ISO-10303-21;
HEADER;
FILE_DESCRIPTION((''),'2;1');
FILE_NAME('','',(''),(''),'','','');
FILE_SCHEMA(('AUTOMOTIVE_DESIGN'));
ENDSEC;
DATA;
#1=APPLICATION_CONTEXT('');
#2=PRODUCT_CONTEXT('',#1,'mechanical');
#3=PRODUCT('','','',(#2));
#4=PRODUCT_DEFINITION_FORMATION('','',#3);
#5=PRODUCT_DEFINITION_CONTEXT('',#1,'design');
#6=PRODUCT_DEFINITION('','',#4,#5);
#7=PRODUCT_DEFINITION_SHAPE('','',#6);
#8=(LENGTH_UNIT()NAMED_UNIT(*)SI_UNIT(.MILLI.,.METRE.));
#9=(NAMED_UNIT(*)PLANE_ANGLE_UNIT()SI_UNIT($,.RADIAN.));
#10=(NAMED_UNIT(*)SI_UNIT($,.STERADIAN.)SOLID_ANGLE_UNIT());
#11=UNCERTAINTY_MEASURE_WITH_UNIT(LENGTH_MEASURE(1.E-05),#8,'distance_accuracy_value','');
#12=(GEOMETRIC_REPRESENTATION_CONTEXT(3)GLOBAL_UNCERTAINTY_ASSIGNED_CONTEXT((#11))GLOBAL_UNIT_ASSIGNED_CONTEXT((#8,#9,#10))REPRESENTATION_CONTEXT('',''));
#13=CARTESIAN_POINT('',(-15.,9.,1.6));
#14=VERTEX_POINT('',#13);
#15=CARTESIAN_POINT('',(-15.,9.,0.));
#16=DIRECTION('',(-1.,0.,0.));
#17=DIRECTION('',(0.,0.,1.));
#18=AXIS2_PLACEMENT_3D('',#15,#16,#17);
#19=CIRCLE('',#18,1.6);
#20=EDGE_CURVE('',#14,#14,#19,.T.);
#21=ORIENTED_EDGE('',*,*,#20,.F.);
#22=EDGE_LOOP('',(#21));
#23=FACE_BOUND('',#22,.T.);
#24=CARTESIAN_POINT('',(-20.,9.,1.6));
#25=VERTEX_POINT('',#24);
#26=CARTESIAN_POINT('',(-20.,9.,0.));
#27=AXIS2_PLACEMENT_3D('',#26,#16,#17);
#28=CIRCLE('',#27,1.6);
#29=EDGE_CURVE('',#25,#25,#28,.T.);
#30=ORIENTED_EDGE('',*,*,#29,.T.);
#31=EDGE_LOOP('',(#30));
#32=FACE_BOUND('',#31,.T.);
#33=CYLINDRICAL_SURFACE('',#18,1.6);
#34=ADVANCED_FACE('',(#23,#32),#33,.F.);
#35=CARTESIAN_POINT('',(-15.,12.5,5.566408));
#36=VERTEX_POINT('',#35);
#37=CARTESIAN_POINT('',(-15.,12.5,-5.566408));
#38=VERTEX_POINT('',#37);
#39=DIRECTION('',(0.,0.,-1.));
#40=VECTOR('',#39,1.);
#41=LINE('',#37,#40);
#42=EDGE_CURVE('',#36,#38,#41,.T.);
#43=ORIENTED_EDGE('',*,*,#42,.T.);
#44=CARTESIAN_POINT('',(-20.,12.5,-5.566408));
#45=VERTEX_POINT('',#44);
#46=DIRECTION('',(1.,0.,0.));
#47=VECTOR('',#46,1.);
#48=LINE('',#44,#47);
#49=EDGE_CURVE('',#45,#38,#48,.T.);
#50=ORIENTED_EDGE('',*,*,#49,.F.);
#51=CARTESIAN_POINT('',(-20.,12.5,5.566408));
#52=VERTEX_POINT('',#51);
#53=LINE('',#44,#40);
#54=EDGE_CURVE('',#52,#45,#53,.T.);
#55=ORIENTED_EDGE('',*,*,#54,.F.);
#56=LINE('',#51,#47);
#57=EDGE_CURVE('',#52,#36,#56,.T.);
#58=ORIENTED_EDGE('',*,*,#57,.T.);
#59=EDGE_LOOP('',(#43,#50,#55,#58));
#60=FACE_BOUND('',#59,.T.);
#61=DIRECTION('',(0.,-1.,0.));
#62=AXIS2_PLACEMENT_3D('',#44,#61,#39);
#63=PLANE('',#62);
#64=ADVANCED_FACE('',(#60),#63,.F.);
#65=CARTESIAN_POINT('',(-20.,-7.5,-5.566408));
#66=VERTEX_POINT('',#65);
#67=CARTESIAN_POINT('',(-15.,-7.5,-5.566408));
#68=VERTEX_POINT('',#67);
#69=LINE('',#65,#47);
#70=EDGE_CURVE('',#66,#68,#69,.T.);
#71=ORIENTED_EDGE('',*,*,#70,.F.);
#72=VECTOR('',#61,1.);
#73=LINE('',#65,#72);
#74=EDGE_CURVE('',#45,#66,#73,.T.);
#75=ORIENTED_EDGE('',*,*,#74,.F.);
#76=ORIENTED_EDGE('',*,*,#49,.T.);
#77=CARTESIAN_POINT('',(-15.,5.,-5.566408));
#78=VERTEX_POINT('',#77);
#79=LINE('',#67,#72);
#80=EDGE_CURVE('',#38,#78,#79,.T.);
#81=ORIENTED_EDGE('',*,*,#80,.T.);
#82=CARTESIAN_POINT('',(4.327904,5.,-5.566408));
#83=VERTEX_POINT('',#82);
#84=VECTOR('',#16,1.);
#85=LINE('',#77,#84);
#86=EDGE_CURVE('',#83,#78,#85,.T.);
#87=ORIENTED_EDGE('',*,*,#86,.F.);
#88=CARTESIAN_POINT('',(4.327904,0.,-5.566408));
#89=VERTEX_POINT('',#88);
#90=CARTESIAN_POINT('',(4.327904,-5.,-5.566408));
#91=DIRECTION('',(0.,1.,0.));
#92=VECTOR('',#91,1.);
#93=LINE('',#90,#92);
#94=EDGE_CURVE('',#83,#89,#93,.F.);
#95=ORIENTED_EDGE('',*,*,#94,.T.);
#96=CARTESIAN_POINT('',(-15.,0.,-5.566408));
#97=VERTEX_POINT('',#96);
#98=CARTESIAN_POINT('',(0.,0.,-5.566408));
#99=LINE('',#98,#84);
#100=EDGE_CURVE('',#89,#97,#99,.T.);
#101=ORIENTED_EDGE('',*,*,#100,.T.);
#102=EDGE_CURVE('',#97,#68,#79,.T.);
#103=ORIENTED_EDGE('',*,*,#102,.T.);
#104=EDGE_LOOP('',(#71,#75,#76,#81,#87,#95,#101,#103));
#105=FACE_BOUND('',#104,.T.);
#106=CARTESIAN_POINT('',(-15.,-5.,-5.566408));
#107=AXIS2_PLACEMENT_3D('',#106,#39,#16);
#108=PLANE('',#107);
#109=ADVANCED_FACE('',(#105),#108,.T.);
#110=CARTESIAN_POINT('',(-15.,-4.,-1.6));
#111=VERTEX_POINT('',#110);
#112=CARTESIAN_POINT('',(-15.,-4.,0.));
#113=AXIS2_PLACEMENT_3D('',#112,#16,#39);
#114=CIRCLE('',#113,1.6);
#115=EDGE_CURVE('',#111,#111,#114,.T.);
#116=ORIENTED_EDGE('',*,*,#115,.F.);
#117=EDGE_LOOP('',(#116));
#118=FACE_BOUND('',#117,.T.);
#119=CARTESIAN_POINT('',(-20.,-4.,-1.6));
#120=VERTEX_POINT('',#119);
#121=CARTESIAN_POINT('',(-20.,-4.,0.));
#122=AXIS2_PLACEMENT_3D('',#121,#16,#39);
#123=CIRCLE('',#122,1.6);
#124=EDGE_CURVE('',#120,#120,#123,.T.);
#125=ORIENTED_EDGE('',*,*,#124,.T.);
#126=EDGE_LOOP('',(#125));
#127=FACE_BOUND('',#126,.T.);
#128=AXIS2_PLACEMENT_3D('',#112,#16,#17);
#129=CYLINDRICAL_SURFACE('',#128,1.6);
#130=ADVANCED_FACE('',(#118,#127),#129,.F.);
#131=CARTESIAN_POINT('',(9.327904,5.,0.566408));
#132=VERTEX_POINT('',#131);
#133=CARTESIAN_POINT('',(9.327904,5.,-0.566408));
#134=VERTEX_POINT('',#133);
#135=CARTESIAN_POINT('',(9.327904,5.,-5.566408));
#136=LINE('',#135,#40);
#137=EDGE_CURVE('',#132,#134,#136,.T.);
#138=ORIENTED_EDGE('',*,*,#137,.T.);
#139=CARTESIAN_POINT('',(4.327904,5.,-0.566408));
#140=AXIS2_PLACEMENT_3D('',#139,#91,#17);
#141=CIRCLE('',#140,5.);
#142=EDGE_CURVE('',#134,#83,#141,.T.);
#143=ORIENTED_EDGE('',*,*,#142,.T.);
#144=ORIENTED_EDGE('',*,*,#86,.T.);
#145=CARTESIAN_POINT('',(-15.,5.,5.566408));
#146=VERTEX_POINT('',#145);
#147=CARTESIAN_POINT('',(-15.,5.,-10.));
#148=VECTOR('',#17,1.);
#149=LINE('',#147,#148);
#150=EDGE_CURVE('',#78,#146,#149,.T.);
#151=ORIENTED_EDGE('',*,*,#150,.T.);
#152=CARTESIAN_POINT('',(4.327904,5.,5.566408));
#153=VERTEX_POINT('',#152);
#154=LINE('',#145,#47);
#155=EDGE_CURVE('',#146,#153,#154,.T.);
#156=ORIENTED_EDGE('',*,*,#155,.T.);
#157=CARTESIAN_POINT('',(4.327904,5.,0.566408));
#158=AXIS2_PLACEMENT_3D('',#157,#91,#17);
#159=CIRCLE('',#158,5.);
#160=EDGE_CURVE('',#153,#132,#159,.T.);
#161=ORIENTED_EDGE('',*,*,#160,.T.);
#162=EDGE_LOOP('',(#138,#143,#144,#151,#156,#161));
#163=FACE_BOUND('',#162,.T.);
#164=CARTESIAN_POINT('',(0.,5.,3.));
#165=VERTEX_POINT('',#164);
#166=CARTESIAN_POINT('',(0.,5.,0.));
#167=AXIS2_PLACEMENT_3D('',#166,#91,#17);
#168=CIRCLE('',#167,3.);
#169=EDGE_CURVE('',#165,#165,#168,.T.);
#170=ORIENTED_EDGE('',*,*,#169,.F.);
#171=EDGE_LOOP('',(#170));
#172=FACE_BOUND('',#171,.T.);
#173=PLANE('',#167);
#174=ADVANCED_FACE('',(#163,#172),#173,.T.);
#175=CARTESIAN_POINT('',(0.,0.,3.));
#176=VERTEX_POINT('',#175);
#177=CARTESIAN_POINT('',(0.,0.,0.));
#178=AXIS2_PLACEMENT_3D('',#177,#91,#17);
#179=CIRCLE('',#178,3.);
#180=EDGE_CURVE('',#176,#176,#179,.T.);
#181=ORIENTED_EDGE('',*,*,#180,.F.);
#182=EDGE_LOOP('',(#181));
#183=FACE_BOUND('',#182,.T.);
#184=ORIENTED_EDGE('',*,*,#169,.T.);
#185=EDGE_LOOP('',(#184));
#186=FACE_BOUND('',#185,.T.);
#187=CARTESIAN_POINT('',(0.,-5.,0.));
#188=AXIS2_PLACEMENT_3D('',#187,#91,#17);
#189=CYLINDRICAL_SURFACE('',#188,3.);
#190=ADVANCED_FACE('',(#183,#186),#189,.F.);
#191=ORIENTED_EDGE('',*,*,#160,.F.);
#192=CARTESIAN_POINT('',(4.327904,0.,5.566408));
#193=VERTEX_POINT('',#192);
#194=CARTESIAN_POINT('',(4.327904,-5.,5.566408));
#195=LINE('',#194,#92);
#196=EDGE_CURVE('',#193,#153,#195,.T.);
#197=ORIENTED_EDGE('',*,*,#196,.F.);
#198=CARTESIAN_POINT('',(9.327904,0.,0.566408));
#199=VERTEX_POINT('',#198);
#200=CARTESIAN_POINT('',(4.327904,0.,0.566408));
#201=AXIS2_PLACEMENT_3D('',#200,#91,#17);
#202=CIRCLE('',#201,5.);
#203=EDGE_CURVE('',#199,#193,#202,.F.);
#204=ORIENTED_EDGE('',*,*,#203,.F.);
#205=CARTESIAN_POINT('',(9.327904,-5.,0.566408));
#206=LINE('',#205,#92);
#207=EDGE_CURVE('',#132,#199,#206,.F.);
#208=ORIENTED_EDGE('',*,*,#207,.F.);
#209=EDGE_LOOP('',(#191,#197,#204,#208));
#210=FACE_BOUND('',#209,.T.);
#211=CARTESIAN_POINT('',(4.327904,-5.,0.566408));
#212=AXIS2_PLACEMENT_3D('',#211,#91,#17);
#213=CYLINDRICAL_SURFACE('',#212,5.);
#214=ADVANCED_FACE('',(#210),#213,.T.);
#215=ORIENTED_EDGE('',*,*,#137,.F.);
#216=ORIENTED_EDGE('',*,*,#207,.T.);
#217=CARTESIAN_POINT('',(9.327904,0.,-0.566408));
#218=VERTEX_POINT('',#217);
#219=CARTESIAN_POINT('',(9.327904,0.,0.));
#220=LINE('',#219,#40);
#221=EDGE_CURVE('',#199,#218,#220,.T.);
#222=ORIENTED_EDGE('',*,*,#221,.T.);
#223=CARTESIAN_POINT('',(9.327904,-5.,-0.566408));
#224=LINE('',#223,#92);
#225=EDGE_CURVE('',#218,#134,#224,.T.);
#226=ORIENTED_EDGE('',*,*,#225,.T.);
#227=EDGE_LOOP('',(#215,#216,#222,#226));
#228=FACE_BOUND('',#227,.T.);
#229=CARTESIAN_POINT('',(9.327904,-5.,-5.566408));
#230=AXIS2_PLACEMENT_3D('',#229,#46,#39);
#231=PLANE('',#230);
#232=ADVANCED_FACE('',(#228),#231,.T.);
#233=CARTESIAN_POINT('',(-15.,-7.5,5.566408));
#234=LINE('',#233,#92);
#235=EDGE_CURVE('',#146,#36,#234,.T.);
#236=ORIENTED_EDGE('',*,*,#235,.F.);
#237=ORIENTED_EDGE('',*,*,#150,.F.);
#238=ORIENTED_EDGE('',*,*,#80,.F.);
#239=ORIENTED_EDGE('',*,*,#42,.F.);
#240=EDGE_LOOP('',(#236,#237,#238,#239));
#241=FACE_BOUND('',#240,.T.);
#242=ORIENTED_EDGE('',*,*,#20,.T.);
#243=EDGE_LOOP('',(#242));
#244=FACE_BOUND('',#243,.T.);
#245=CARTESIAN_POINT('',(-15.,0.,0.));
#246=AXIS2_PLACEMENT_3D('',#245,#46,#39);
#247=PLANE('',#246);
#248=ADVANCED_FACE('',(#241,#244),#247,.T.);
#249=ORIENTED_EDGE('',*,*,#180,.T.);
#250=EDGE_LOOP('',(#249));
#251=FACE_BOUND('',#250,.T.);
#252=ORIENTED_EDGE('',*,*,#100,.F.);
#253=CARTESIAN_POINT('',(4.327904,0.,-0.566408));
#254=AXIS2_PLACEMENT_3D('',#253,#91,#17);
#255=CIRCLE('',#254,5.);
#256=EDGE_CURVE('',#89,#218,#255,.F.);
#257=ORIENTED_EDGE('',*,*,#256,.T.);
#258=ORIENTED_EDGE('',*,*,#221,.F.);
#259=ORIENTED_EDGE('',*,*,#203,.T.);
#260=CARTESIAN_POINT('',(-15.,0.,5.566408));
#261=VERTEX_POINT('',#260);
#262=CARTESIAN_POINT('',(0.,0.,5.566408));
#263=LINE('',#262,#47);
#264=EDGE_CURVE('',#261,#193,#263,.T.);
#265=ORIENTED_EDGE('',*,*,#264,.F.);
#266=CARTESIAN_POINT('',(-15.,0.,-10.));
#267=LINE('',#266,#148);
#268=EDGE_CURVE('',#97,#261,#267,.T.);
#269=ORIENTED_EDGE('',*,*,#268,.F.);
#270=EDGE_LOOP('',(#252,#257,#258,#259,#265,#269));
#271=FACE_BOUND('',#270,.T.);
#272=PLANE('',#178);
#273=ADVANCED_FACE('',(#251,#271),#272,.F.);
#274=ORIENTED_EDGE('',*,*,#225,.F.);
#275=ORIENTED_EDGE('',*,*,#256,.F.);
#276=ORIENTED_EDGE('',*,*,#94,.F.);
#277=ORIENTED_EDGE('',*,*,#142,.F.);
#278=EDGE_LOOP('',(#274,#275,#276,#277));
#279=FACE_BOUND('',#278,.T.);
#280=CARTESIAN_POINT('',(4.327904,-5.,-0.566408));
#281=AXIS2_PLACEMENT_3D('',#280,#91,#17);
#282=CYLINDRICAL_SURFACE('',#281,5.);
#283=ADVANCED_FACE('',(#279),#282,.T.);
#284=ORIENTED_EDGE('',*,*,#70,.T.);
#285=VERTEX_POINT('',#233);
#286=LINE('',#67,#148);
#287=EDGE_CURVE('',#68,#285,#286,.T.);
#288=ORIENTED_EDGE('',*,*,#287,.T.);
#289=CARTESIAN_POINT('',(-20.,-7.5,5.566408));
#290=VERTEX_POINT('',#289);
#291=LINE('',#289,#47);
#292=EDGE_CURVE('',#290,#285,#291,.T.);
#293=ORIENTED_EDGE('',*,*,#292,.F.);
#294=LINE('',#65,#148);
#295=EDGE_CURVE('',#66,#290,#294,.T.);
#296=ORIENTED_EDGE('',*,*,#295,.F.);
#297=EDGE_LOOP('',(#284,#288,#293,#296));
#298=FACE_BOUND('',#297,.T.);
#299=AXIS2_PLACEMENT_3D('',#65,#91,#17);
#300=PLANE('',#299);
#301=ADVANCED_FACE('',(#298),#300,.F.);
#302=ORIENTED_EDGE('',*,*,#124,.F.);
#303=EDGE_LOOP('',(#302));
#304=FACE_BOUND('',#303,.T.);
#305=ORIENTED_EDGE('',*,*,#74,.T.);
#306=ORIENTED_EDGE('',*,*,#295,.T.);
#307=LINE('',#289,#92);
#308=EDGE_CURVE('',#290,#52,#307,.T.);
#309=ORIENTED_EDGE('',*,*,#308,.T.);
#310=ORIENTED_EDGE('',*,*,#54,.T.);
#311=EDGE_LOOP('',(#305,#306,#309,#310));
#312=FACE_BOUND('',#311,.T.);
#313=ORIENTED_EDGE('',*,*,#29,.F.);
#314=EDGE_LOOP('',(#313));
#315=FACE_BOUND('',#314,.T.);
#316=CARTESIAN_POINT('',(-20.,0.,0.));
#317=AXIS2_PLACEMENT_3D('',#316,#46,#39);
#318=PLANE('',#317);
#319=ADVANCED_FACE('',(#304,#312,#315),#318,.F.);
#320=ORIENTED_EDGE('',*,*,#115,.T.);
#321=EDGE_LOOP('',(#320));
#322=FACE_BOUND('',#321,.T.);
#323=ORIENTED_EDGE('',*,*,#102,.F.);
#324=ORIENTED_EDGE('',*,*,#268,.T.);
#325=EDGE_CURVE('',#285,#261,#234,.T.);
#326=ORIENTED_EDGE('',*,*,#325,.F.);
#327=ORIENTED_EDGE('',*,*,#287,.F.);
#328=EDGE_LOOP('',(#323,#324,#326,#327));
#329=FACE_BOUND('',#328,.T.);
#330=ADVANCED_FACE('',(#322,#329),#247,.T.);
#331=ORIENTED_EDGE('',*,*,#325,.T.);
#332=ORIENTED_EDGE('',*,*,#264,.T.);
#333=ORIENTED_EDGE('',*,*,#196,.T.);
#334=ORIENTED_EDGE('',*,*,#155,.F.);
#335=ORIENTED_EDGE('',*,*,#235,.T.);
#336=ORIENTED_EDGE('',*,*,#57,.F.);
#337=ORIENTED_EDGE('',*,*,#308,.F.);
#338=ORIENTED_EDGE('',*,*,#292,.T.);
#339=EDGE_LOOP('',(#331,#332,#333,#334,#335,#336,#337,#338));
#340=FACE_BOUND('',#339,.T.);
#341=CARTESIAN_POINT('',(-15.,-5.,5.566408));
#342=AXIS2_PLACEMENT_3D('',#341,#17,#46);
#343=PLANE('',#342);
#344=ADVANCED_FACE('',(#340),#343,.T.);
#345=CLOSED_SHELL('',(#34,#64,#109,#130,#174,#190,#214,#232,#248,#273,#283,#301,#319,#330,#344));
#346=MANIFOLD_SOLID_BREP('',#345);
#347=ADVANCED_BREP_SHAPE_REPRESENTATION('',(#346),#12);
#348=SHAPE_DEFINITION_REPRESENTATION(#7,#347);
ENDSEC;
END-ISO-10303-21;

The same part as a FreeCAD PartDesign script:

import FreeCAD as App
import Part
import Sketcher

V = App.Vector


def edges_at(feature, points):
    """Names of the edges that pass closest to the given points."""
    edges = feature.Shape.Edges
    near = lambda p: min(range(len(edges)), key=lambda i: edges[i].distToShape(Part.Vertex(*p))[0])
    return sorted({f"Edge{near(p) + 1}" for p in points})


def add_polygon(sketch, points):
    """Adds a closed chain of lines whose ends are joined by coincident constraints."""
    first, n = sketch.GeometryCount, len(points)
    for a, b in zip(points, points[1:] + points[:1]):
        sketch.addGeometry(Part.LineSegment(App.Vector(*a, 0), App.Vector(*b, 0)), False)
    for i in range(n):
        sketch.addConstraint(Sketcher.Constraint("Coincident", first + i, 2, first + (i + 1) % n, 1))

doc = App.newDocument("Part")
body = doc.addObject("PartDesign::Body", "Body")

sketch1 = body.newObject("Sketcher::SketchObject", "Sketch")
sketch1.AttachmentSupport = (doc.getObject("XZ_Plane"), [""])
sketch1.MapMode = "FlatFace"
add_polygon(sketch1, [(-15, -10), (-15, 10), (15, 10), (15, -10)])
sketch1.addConstraint([
    Sketcher.Constraint("Vertical", 0),
    Sketcher.Constraint("Horizontal", 1),
    Sketcher.Constraint("Vertical", 2),
    Sketcher.Constraint("Horizontal", 3),
    Sketcher.Constraint("Symmetric", 0, 2, 2, 2, -1, 1),
    Sketcher.Constraint("DistanceX", 1, 1, 1, 2, 30.0),
    Sketcher.Constraint("DistanceY", 0, 1, 0, 2, 20.0),
])
pad1 = body.newObject("PartDesign::Pad", "Pad")
pad1.Profile = sketch1
pad1.Length = 5
pad1.Reversed = True

sketch2 = body.newObject("Sketcher::SketchObject", "Sketch001")
sketch2.AttachmentSupport = (doc.getObject("XZ_Plane"), [""])
sketch2.MapMode = "FlatFace"
sketch2.AttachmentOffset = App.Placement(V(0, 0, -5), App.Rotation())
sketch2.addGeometry(Part.Circle(V(0, 0, 0), V(0, 0, 1), 3), False)
sketch2.addConstraint([
    Sketcher.Constraint("Coincident", 0, 3, -1, 1),
    Sketcher.Constraint("Diameter", 0, 6.0),
])
pocket1 = body.newObject("PartDesign::Pocket", "Pocket")
pocket1.Profile = sketch2
pocket1.Length = 10
pocket1.Reversed = True

sketch3 = body.newObject("Sketcher::SketchObject", "Sketch002")
sketch3.AttachmentSupport = (doc.getObject("XZ_Plane"), [""])
sketch3.MapMode = "FlatFace"
sketch3.AttachmentOffset = App.Placement(V(0, 0, -5), App.Rotation())
add_polygon(sketch3, [(-19.64, -14.64), (-19.64, 14.64), (19.64, 14.64), (19.64, -14.64)])
add_polygon(sketch3, [(9.327904, 5.566408), (-15, 5.566408), (-15, -5.566408), (9.327904, -5.566408)])
sketch3.addConstraint([
    Sketcher.Constraint("Vertical", 0),
    Sketcher.Constraint("Horizontal", 1),
    Sketcher.Constraint("Vertical", 2),
    Sketcher.Constraint("Horizontal", 3),
    Sketcher.Constraint("Horizontal", 4),
    Sketcher.Constraint("Vertical", 5),
    Sketcher.Constraint("Horizontal", 6),
    Sketcher.Constraint("Vertical", 7),
    Sketcher.Constraint("Symmetric", 0, 2, 2, 2, -1, 1),
    Sketcher.Constraint("DistanceX", 4, 2, -1, 1, 15.0),
    Sketcher.Constraint("DistanceX", 1, 1, 1, 2, 39.28),
    Sketcher.Constraint("DistanceY", 0, 1, 0, 2, 29.28),
    Sketcher.Constraint("DistanceX", 4, 2, 4, 1, 24.327904),
    Sketcher.Constraint("DistanceY", 5, 2, 5, 1, 11.132816),
    Sketcher.Constraint("DistanceY", -1, 1, 4, 2, 5.566408),
])
pocket2 = body.newObject("PartDesign::Pocket", "Pocket001")
pocket2.Profile = sketch3
pocket2.Length = 10
pocket2.Reversed = True

sketch4 = body.newObject("Sketcher::SketchObject", "Sketch003")
sketch4.AttachmentSupport = (doc.getObject("YZ_Plane"), [""])
sketch4.MapMode = "FlatFace"
sketch4.AttachmentOffset = App.Placement(V(0, 0, -15), App.Rotation())
add_polygon(sketch4, [(12.5, -5.566408), (-7.5, -5.566408), (-7.5, 5.566408), (12.5, 5.566408)])
sketch4.addConstraint([
    Sketcher.Constraint("Horizontal", 0),
    Sketcher.Constraint("Vertical", 1),
    Sketcher.Constraint("Horizontal", 2),
    Sketcher.Constraint("Vertical", 3),
    Sketcher.Constraint("DistanceX", 0, 2, 0, 1, 20.0),
    Sketcher.Constraint("DistanceX", 0, 2, -1, 1, 7.5),
    Sketcher.Constraint("DistanceY", 1, 1, 1, 2, 11.132816),
    Sketcher.Constraint("DistanceY", 0, 2, -1, 1, 5.566408),
])
pad2 = body.newObject("PartDesign::Pad", "Pad001")
pad2.Profile = sketch4
pad2.Length = 5
pad2.Reversed = True

sketch5 = body.newObject("Sketcher::SketchObject", "Sketch004")
sketch5.AttachmentSupport = (doc.getObject("YZ_Plane"), [""])
sketch5.MapMode = "FlatFace"
sketch5.AttachmentOffset = App.Placement(V(0, 0, -20), App.Rotation())
sketch5.addGeometry([
    Part.Circle(V(9, 0, 0), V(0, 0, 1), 1.6),
    Part.Circle(V(-4, 0, 0), V(0, 0, 1), 1.6),
], False)
sketch5.addConstraint([
    Sketcher.Constraint("Equal", 0, 1),
    Sketcher.Constraint("PointOnObject", 0, 3, -1),
    Sketcher.Constraint("PointOnObject", 1, 3, -1),
    Sketcher.Constraint("Diameter", 0, 3.2),
    Sketcher.Constraint("DistanceX", -1, 1, 0, 3, 9.0),
    Sketcher.Constraint("DistanceX", 1, 3, -1, 1, 4.0),
])
pocket3 = body.newObject("PartDesign::Pocket", "Pocket002")
pocket3.Profile = sketch5
pocket3.Length = 5
pocket3.Reversed = True
doc.recompute()

fillet = body.newObject("PartDesign::Fillet", "Fillet")
fillet.Base = (pocket3, edges_at(pocket3, [(9.328, 2.5, -5.566), (9.328, 2.5, 5.566)]))
fillet.Radius = 5

doc.recompute()
